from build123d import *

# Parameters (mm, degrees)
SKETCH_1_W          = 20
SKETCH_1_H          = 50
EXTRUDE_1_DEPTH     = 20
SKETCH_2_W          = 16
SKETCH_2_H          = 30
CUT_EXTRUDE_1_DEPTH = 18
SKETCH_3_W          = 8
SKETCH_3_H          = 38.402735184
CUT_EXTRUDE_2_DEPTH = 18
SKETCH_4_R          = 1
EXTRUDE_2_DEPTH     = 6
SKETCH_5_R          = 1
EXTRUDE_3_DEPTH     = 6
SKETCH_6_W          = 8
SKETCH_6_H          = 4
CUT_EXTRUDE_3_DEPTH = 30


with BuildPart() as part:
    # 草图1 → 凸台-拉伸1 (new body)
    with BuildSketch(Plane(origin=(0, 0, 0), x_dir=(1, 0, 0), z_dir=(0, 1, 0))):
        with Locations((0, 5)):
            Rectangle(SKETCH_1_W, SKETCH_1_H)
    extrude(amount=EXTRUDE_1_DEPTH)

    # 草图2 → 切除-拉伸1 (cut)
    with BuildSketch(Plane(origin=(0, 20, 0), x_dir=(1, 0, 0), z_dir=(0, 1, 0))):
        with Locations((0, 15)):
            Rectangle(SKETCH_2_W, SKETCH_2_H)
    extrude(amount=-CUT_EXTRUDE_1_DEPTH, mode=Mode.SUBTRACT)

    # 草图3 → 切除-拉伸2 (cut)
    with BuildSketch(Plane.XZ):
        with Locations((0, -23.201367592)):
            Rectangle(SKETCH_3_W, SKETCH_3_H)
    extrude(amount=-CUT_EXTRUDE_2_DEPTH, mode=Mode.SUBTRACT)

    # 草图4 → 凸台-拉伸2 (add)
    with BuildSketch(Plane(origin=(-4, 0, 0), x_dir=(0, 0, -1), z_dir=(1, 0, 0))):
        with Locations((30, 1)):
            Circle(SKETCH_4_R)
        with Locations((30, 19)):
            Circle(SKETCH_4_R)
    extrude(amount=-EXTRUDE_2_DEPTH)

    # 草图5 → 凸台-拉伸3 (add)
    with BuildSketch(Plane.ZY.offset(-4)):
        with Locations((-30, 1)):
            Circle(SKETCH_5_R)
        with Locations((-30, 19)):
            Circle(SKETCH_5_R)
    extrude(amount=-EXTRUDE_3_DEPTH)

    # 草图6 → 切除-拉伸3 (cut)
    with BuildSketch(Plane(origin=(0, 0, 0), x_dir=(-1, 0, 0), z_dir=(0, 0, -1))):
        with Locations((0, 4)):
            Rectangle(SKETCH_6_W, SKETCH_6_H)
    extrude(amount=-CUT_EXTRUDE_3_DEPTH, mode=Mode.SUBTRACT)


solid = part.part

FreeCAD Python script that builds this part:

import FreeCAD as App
import Part
import Sketcher

V = App.Vector
Q = App.Units.Quantity

doc = App.newDocument("Part")
body = doc.addObject("PartDesign::Body", "Body")

# Sketch on XZ plane
sketch1 = body.newObject("Sketcher::SketchObject", "Sketch")
sketch1.AttachmentSupport = (doc.getObject("XZ_Plane"), [""])
sketch1.MapMode = "FlatFace"
sketch1.addGeometry(Part.LineSegment(V(-10, -30, 0), V(-10, 20, 0)), False)
sketch1.addGeometry(Part.LineSegment(V(-10, 20, 0), V(10, 20, 0)), False)
sketch1.addGeometry(Part.LineSegment(V(10, 20, 0), V(10, -30, 0)), False)
sketch1.addGeometry(Part.LineSegment(V(10, -30, 0), V(-10, -30, 0)), False)
sketch1.addConstraint(Sketcher.Constraint("Coincident", 0, 2, 1, 1))
sketch1.addConstraint(Sketcher.Constraint("Coincident", 1, 2, 2, 1))
sketch1.addConstraint(Sketcher.Constraint("Coincident", 2, 2, 3, 1))
sketch1.addConstraint(Sketcher.Constraint("Coincident", 3, 2, 0, 1))
sketch1.addConstraint(Sketcher.Constraint("Vertical", 0))
sketch1.addConstraint(Sketcher.Constraint("Horizontal", 1))
sketch1.addConstraint(Sketcher.Constraint("Vertical", 2))
sketch1.addConstraint(Sketcher.Constraint("Horizontal", 3))
sketch1.addConstraint(Sketcher.Constraint("DistanceX", 1, 1, 1, 2, Q("20 mm")))
sketch1.addConstraint(Sketcher.Constraint("DistanceY", 0, 1, 0, 2, Q("50 mm")))
sketch1.addConstraint(Sketcher.Constraint("DistanceX", 0, 2, -1, 1, Q("10 mm")))
sketch1.addConstraint(Sketcher.Constraint("DistanceY", -1, 1, 0, 2, Q("20 mm")))
pad1 = body.newObject("PartDesign::Pad", "Pad")
pad1.Profile = sketch1
pad1.Length = 20
pad1.Reversed = True

# Sketch on XZ plane
sketch2 = body.newObject("Sketcher::SketchObject", "Sketch001")
sketch2.AttachmentSupport = (doc.getObject("XZ_Plane"), [""])
sketch2.MapMode = "FlatFace"
sketch2.AttachmentOffset = App.Placement(V(0, 0, -20), App.Rotation())
sketch2.addGeometry(Part.LineSegment(V(-8, -30, 0), V(-8, 0, 0)), False)
sketch2.addGeometry(Part.LineSegment(V(-8, 0, 0), V(8, 0, 0)), False)
sketch2.addGeometry(Part.LineSegment(V(8, 0, 0), V(8, -30, 0)), False)
sketch2.addGeometry(Part.LineSegment(V(8, -30, 0), V(-8, -30, 0)), False)
sketch2.addConstraint(Sketcher.Constraint("Coincident", 0, 2, 1, 1))
sketch2.addConstraint(Sketcher.Constraint("Coincident", 1, 2, 2, 1))
sketch2.addConstraint(Sketcher.Constraint("Coincident", 2, 2, 3, 1))
sketch2.addConstraint(Sketcher.Constraint("Coincident", 3, 2, 0, 1))
sketch2.addConstraint(Sketcher.Constraint("Vertical", 0))
sketch2.addConstraint(Sketcher.Constraint("Horizontal", 1))
sketch2.addConstraint(Sketcher.Constraint("Vertical", 2))
sketch2.addConstraint(Sketcher.Constraint("Horizontal", 3))
sketch2.addConstraint(Sketcher.Constraint("Symmetric", 0, 2, 1, 2, -1, 1))
sketch2.addConstraint(Sketcher.Constraint("DistanceX", 1, 1, 1, 2, Q("16 mm")))
sketch2.addConstraint(Sketcher.Constraint("DistanceY", 0, 1, 0, 2, Q("30 mm")))
pocket1 = body.newObject("PartDesign::Pocket", "Pocket")
pocket1.Profile = sketch2
pocket1.Length = 18
pocket1.Reversed = True

# Sketch on XZ plane
sketch3 = body.newObject("Sketcher::SketchObject", "Sketch002")
sketch3.AttachmentSupport = (doc.getObject("XZ_Plane"), [""])
sketch3.MapMode = "FlatFace"
sketch3.addGeometry(Part.LineSegment(V(-4, -4, 0), V(-4, -42, 0)), False)
sketch3.addGeometry(Part.LineSegment(V(-4, -42, 0), V(4, -42, 0)), False)
sketch3.addGeometry(Part.LineSegment(V(4, -42, 0), V(4, -4, 0)), False)
sketch3.addGeometry(Part.LineSegment(V(4, -4, 0), V(-4, -4, 0)), False)
sketch3.addConstraint(Sketcher.Constraint("Coincident", 0, 2, 1, 1))
sketch3.addConstraint(Sketcher.Constraint("Coincident", 1, 2, 2, 1))
sketch3.addConstraint(Sketcher.Constraint("Coincident", 2, 2, 3, 1))
sketch3.addConstraint(Sketcher.Constraint("Coincident", 3, 2, 0, 1))
sketch3.addConstraint(Sketcher.Constraint("Vertical", 0))
sketch3.addConstraint(Sketcher.Constraint("Horizontal", 1))
sketch3.addConstraint(Sketcher.Constraint("Vertical", 2))
sketch3.addConstraint(Sketcher.Constraint("Horizontal", 3))
sketch3.addConstraint(Sketcher.Constraint("DistanceX", 1, 1, 1, 2, Q("8 mm")))
sketch3.addConstraint(Sketcher.Constraint("DistanceX", 0, 2, -1, 1, Q("4 mm")))
sketch3.addConstraint(Sketcher.Constraint("DistanceY", 2, 2, -1, 1, Q("4 mm")))
sketch3.addConstraint(Sketcher.Constraint("DistanceY", 0, 2, 0, 1, Q("38.402735 mm")))
pocket2 = body.newObject("PartDesign::Pocket", "Pocket001")
pocket2.Profile = sketch3
pocket2.Length = 18

# Sketch on YZ plane
sketch4 = body.newObject("Sketcher::SketchObject", "Sketch003")
sketch4.AttachmentSupport = (doc.getObject("YZ_Plane"), [""])
sketch4.MapMode = "FlatFace"
sketch4.AttachmentOffset = App.Placement(V(0, 0, -4), App.Rotation())
sketch4.addGeometry(Part.Circle(V(1, -30, 0), V(0, 0, 1), 1), False)
sketch4.addGeometry(Part.Circle(V(19, -30, 0), V(0, 0, 1), 1), False)
sketch4.addConstraint(Sketcher.Constraint("Equal", 0, 1))
sketch4.addConstraint(Sketcher.Constraint("Horizontal", 0, 3, 1, 3))
sketch4.addConstraint(Sketcher.Constraint("Diameter", 0, Q("2 mm")))
sketch4.addConstraint(Sketcher.Constraint("DistanceX", -1, 1, 0, 3, Q("1 mm")))
sketch4.addConstraint(Sketcher.Constraint("DistanceY", 0, 3, -1, 1, Q("30 mm")))
sketch4.addConstraint(Sketcher.Constraint("DistanceX", -1, 1, 1, 3, Q("19 mm")))
pad2 = body.newObject("PartDesign::Pad", "Pad001")
pad2.Profile = sketch4
pad2.Length = 6
pad2.Reversed = True

# Sketch on YZ plane
sketch5 = body.newObject("Sketcher::SketchObject", "Sketch004")
sketch5.AttachmentSupport = (doc.getObject("YZ_Plane"), [""])
sketch5.MapMode = "FlatFace"
sketch5.AttachmentOffset = App.Placement(V(0, 0, 4), App.Rotation())
sketch5.addGeometry(Part.Circle(V(1, -30, 0), V(0, 0, 1), 1), False)
sketch5.addGeometry(Part.Circle(V(19, -30, 0), V(0, 0, 1), 1), False)
sketch5.addConstraint(Sketcher.Constraint("Equal", 0, 1))
sketch5.addConstraint(Sketcher.Constraint("Horizontal", 0, 3, 1, 3))
sketch5.addConstraint(Sketcher.Constraint("Diameter", 0, Q("2 mm")))
sketch5.addConstraint(Sketcher.Constraint("DistanceX", -1, 1, 0, 3, Q("1 mm")))
sketch5.addConstraint(Sketcher.Constraint("DistanceY", 0, 3, -1, 1, Q("30 mm")))
sketch5.addConstraint(Sketcher.Constraint("DistanceX", -1, 1, 1, 3, Q("19 mm")))
pad3 = body.newObject("PartDesign::Pad", "Pad002")
pad3.Profile = sketch5
pad3.Length = 6

# Sketch on XY plane
sketch6 = body.newObject("Sketcher::SketchObject", "Sketch005")
sketch6.AttachmentSupport = (doc.getObject("XY_Plane"), [""])
sketch6.MapMode = "FlatFace"
sketch6.addGeometry(Part.LineSegment(V(4, 6, 0), V(4, 2, 0)), False)
sketch6.addGeometry(Part.LineSegment(V(4, 2, 0), V(-4, 2, 0)), False)
sketch6.addGeometry(Part.LineSegment(V(-4, 2, 0), V(-4, 6, 0)), False)
sketch6.addGeometry(Part.LineSegment(V(-4, 6, 0), V(4, 6, 0)), False)
sketch6.addConstraint(Sketcher.Constraint("Coincident", 0, 2, 1, 1))
sketch6.addConstraint(Sketcher.Constraint("Coincident", 1, 2, 2, 1))
sketch6.addConstraint(Sketcher.Constraint("Coincident", 2, 2, 3, 1))
sketch6.addConstraint(Sketcher.Constraint("Coincident", 3, 2, 0, 1))
sketch6.addConstraint(Sketcher.Constraint("Vertical", 0))
sketch6.addConstraint(Sketcher.Constraint("Horizontal", 1))
sketch6.addConstraint(Sketcher.Constraint("Vertical", 2))
sketch6.addConstraint(Sketcher.Constraint("Horizontal", 3))
sketch6.addConstraint(Sketcher.Constraint("DistanceX", 1, 2, 1, 1, Q("8 mm")))
sketch6.addConstraint(Sketcher.Constraint("DistanceY", 0, 2, 0, 1, Q("4 mm")))
sketch6.addConstraint(Sketcher.Constraint("DistanceX", -1, 1, 0, 2, Q("4 mm")))
sketch6.addConstraint(Sketcher.Constraint("DistanceY", -1, 1, 0, 2, Q("2 mm")))
pocket3 = body.newObject("PartDesign::Pocket", "Pocket002")
pocket3.Profile = sketch6
pocket3.Length = 30
pocket3.Reversed = True

doc.recompute()
